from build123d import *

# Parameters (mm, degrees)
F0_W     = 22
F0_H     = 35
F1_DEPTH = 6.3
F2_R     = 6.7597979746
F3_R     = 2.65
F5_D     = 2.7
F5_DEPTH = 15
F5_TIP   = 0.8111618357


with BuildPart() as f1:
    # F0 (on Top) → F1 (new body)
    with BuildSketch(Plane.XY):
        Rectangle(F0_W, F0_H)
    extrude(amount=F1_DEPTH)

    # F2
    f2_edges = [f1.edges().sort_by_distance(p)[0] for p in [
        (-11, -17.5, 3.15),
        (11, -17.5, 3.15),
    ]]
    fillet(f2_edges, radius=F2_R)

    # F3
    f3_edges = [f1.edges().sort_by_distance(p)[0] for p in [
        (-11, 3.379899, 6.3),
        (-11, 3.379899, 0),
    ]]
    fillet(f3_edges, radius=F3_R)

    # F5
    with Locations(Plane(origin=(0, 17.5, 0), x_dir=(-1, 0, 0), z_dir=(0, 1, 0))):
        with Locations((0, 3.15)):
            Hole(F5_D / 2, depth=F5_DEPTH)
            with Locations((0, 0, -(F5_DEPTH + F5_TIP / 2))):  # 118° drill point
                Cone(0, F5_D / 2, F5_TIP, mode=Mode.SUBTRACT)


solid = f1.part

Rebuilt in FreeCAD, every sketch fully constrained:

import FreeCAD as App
import Part
import Sketcher
from FreeCAD import Vector
Q = App.Units.Quantity


def edges_at(feature, points):
    """Names of the edges that pass closest to the given points."""
    edges = feature.Shape.Edges
    near = lambda p: min(range(len(edges)), key=lambda i: edges[i].distToShape(Part.Vertex(*p))[0])
    return sorted({f"Edge{near(p) + 1}" for p in points})


def add_polygon(sketch, points):
    """Adds a closed chain of lines whose ends are joined by coincident constraints."""
    first, n = sketch.GeometryCount, len(points)
    for a, b in zip(points, points[1:] + points[:1]):
        sketch.addGeometry(Part.LineSegment(App.Vector(*a, 0), App.Vector(*b, 0)), False)
    for i in range(n):
        sketch.addConstraint(Sketcher.Constraint("Coincident", first + i, 2, first + (i + 1) % n, 1))

doc = App.newDocument("Part")
params = doc.addObject("Spreadsheet::Sheet", "Params")
for row, (alias, value) in enumerate([
    ("sketch1_width", "22 mm"),
    ("sketch1_height", "35 mm"),
    ("pad1_length", "6.3 mm"),
    ("fillet_radius", "6.759798 mm"),
    ("fillet2_radius", "2.65 mm"),
    ("sketch2_diameter", "2.7 mm"),
    ("hole_diameter", "2.7 mm"),
    ("hole_depth", "15 mm"),
], start=1):
    params.set(f"A{row}", alias)
    params.set(f"B{row}", "=" + value)
    params.setAlias(f"B{row}", alias)

body = doc.addObject("PartDesign::Body", "Body")

# Sketch on XY plane
sketch1 = body.newObject("Sketcher::SketchObject", "Sketch")
sketch1.AttachmentSupport = (doc.getObject("XY_Plane"), [""])
sketch1.MapMode = "FlatFace"
add_polygon(sketch1, [(-11, 17.5), (-11, -17.5), (11, -17.5), (11, 17.5)])  # lines 0-3
sketch1.addConstraint(Sketcher.Constraint("Vertical", 0))
sketch1.addConstraint(Sketcher.Constraint("Horizontal", 1))
sketch1.addConstraint(Sketcher.Constraint("Vertical", 2))
sketch1.addConstraint(Sketcher.Constraint("Horizontal", 3))
sketch1.addConstraint(Sketcher.Constraint("Symmetric", 0, 2, 2, 2, -1, 1))
sketch1.addConstraint(Sketcher.Constraint("DistanceX", 1, 1, 1, 2, Q("22 mm")))
sketch1.addConstraint(Sketcher.Constraint("DistanceY", 0, 2, 0, 1, Q("35 mm")))
sketch1.setExpression("Constraints[9]", "Params.sketch1_width")
sketch1.setExpression("Constraints[10]", "Params.sketch1_height")
pad1 = body.newObject("PartDesign::Pad", "Pad")
pad1.Profile = sketch1
pad1.setExpression("Length", "Params.pad1_length")
doc.recompute()

fillet = body.newObject("PartDesign::Fillet", "Fillet")
fillet.Base = (pad1, edges_at(pad1, [(-11, -17.5, 3.15), (11, -17.5, 3.15)]))
fillet.setExpression("Radius", "Params.fillet_radius")
doc.recompute()

fillet2 = body.newObject("PartDesign::Fillet", "Fillet001")
fillet2.Base = (fillet, edges_at(fillet, [(-11, 3.38, 6.3), (-11, 3.38, 0)]))
fillet2.setExpression("Radius", "Params.fillet2_radius")

# Sketch on XZ plane
sketch2 = body.newObject("Sketcher::SketchObject", "Sketch001")
sketch2.AttachmentSupport = (doc.getObject("XZ_Plane"), [""])
sketch2.MapMode = "FlatFace"
sketch2.AttachmentOffset = App.Placement(Vector(0, 0, -17.5), App.Rotation())
sketch2.addGeometry(Part.Circle(Vector(0, 3.15, 0), Vector(0, 0, 1), 1.35), False)
sketch2.addConstraint(Sketcher.Constraint("PointOnObject", 0, 3, -2))
sketch2.addConstraint(Sketcher.Constraint("Diameter", 0, Q("2.7 mm")))
sketch2.addConstraint(Sketcher.Constraint("DistanceY", -1, 1, 0, 3, Q("3.15 mm")))
sketch2.setExpression("Constraints[1]", "Params.sketch2_diameter")
doc.recompute()
hole = body.newObject("PartDesign::Hole", "Hole")
hole.Profile = sketch2
hole.ThreadType = "None"
hole.setExpression("Diameter", "Params.hole_diameter")
hole.DepthType = "Dimension"
hole.setExpression("Depth", "Params.hole_depth")
hole.DrillPoint = "Angled"
hole.DrillPointAngle = 118
hole.Reversed = True

doc.recompute()
